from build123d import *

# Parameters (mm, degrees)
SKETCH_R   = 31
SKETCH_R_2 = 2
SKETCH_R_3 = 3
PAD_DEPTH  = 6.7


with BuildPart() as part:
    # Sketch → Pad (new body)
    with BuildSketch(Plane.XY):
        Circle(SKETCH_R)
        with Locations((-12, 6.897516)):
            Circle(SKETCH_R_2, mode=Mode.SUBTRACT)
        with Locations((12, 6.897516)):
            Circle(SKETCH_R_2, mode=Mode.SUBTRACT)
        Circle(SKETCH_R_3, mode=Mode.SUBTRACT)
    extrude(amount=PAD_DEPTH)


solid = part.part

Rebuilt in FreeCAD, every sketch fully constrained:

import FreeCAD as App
import Part
import Sketcher

V = App.Vector

doc = App.newDocument("Part")
params = doc.addObject("Spreadsheet::Sheet", "Params")
for row, (alias, value) in enumerate([
    ("sketch1_diameter", "62 mm"),
    ("sketch1_diameter2", "6 mm"),
    ("sketch1_diameter3", "4 mm"),
    ("pad1_length", "6.7 mm"),
], start=1):
    params.set(f"A{row}", alias)
    params.set(f"B{row}", "=" + value)
    params.setAlias(f"B{row}", alias)

body = doc.addObject("PartDesign::Body", "Body")

# Sketch on XY plane
sketch1 = body.newObject("Sketcher::SketchObject", "Sketch")
sketch1.AttachmentSupport = (doc.getObject("XY_Plane"), [""])
sketch1.MapMode = "FlatFace"
sketch1.addGeometry(Part.Circle(V(0, 0, 0), V(0, 0, 1), 31), False)
sketch1.addGeometry(Part.Circle(V(0, 0, 0), V(0, 0, 1), 3), False)
sketch1.addGeometry(Part.Circle(V(-12, 6.9, 0), V(0, 0, 1), 2), False)
sketch1.addGeometry(Part.Circle(V(12, 6.9, 0), V(0, 0, 1), 2), False)
sketch1.addConstraint(Sketcher.Constraint("Coincident", 0, 3, -1, 1))
sketch1.addConstraint(Sketcher.Constraint("Coincident", 1, 3, -1, 1))
sketch1.addConstraint(Sketcher.Constraint("Equal", 2, 3))
sketch1.addConstraint(Sketcher.Constraint("Symmetric", 2, 3, 3, 3, -2))
sketch1.addConstraint(Sketcher.Constraint("Diameter", 0, 62.0))
sketch1.addConstraint(Sketcher.Constraint("Diameter", 1, 6.0))
sketch1.addConstraint(Sketcher.Constraint("Diameter", 2, 4.0))
sketch1.addConstraint(Sketcher.Constraint("DistanceX", 2, 3, -1, 1, 12.0))
sketch1.addConstraint(Sketcher.Constraint("DistanceY", -1, 1, 2, 3, 6.897516))
sketch1.setExpression("Constraints[4]", "Params.sketch1_diameter")
sketch1.setExpression("Constraints[5]", "Params.sketch1_diameter2")
sketch1.setExpression("Constraints[6]", "Params.sketch1_diameter3")
pad1 = body.newObject("PartDesign::Pad", "Pad")
pad1.Profile = sketch1
pad1.setExpression("Length", "Params.pad1_length")

doc.recompute()
